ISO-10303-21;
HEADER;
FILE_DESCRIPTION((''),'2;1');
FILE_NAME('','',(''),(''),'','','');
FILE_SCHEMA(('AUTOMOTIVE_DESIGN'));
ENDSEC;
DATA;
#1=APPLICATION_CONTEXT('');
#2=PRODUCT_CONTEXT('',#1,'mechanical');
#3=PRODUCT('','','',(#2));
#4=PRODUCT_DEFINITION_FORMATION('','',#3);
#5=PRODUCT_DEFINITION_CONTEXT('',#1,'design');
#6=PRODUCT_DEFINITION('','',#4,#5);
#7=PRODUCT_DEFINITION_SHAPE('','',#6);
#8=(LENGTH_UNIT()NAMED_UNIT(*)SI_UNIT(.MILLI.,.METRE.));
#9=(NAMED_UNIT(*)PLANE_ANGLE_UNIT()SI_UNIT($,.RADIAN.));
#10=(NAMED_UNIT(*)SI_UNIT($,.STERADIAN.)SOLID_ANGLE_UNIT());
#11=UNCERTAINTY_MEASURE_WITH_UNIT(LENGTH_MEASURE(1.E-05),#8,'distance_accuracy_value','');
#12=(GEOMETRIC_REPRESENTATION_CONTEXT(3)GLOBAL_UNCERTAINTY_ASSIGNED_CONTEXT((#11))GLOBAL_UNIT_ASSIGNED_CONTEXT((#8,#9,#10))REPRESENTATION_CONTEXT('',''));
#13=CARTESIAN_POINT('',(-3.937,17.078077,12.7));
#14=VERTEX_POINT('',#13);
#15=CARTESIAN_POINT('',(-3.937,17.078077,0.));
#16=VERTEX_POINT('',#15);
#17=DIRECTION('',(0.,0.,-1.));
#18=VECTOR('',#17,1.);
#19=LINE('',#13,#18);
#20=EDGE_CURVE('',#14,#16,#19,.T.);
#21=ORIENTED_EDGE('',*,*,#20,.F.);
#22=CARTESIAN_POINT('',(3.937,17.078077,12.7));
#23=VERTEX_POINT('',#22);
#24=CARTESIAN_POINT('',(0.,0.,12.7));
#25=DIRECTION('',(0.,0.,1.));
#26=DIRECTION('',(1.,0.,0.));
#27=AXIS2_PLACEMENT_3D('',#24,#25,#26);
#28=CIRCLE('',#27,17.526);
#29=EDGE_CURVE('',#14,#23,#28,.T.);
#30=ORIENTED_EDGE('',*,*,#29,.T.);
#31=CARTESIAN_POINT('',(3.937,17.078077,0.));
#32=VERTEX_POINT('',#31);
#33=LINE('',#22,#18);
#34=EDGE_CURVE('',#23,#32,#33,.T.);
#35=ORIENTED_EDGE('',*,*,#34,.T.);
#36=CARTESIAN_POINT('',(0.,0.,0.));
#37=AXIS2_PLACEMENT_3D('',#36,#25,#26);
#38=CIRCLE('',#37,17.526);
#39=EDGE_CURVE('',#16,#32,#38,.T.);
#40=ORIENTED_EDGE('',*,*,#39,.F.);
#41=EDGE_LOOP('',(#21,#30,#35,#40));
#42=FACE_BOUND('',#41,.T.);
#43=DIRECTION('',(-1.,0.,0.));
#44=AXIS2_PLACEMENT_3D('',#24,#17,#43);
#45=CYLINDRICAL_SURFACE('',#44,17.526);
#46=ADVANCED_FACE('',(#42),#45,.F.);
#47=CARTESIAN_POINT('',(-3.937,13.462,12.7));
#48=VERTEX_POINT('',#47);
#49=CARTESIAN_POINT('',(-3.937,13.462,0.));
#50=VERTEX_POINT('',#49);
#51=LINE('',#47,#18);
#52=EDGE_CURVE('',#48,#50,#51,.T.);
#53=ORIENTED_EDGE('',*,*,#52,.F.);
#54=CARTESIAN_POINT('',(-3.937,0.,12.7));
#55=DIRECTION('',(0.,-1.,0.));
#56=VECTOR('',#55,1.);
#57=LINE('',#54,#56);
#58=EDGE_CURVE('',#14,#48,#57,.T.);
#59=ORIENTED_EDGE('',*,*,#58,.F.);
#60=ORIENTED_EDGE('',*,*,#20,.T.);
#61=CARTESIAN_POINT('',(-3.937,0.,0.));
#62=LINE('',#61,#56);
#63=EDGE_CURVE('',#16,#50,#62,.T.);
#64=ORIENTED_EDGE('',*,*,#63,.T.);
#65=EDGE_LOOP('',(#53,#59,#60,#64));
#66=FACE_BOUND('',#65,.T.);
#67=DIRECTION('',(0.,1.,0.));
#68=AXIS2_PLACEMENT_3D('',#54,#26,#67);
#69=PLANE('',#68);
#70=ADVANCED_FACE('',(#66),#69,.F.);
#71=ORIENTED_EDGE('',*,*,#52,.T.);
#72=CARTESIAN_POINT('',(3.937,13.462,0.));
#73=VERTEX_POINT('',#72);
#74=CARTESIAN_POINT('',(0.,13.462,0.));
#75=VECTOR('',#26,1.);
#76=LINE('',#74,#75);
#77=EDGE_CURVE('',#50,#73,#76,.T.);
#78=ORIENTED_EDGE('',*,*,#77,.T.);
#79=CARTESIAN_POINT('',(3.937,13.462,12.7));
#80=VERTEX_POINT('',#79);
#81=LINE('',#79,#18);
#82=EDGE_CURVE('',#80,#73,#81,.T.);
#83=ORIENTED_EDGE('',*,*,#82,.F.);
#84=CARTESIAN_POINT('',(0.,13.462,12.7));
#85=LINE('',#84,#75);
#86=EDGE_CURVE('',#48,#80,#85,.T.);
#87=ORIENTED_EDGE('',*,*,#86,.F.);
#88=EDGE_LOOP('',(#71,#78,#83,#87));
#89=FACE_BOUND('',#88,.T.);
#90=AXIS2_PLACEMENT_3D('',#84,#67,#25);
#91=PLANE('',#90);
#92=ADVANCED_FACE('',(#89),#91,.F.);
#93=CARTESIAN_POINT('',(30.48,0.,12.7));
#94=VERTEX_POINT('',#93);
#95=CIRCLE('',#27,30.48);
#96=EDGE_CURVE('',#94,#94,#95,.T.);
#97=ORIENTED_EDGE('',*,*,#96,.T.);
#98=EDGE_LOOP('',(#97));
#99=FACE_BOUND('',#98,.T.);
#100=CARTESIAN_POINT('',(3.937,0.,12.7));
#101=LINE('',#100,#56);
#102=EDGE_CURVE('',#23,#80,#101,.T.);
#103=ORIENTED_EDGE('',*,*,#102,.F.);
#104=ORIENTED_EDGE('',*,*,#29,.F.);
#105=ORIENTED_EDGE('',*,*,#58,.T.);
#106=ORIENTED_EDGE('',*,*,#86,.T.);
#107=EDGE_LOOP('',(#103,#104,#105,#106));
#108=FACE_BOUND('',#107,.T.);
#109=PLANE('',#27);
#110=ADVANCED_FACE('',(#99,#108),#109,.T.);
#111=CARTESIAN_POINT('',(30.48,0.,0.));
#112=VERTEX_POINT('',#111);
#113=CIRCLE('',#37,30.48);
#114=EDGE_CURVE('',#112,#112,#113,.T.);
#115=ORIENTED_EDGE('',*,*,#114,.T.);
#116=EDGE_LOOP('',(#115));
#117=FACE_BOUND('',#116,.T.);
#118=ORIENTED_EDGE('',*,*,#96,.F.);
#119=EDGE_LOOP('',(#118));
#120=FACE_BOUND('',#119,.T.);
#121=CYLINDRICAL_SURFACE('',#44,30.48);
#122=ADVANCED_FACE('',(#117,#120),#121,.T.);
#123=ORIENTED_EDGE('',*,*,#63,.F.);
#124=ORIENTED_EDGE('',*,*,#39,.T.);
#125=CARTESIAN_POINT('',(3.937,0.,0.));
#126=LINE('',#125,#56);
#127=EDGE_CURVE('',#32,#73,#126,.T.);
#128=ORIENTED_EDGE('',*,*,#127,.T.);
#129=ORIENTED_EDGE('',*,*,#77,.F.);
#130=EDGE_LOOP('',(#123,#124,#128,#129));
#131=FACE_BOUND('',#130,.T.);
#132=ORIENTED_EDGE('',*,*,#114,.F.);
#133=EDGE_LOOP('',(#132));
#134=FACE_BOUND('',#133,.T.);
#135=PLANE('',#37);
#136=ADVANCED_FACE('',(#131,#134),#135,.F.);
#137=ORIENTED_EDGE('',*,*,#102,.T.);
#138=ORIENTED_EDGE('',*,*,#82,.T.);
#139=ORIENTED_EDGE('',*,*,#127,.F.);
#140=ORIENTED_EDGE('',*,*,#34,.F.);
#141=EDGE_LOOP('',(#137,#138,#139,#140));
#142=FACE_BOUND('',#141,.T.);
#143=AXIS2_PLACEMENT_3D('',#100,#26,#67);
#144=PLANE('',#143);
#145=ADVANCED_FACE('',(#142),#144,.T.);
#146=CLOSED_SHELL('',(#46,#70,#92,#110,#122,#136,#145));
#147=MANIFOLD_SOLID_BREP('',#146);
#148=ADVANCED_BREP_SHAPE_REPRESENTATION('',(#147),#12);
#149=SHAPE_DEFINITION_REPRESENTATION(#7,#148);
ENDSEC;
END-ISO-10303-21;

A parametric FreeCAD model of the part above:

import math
import FreeCAD as App
import Part
import Sketcher
from FreeCAD import Vector
Q = App.Units.Quantity

doc = App.newDocument("Part")
body = doc.addObject("PartDesign::Body", "Body")

# Sketch on XY plane
sketch1 = body.newObject("Sketcher::SketchObject", "Sketch")
sketch1.AttachmentSupport = (doc.getObject("XY_Plane"), [""])
sketch1.MapMode = "FlatFace"
sketch1.addGeometry(Part.Circle(Vector(0, 0, 0), Vector(0, 0, 1), 30.5), False)
sketch1.addGeometry(Part.ArcOfCircle(Part.Circle(Vector(0, 0, 0), Vector(0, 0, 1), 17.5), math.radians(103), math.radians(437)), False)
sketch1.addGeometry(Part.LineSegment(Vector(-3.9, 17.1, 0), Vector(-3.9, 13.5, 0)), False)
sketch1.addGeometry(Part.LineSegment(Vector(-3.9, 13.5, 0), Vector(3.9, 13.5, 0)), False)
sketch1.addGeometry(Part.LineSegment(Vector(3.9, 13.5, 0), Vector(3.9, 17.1, 0)), False)
sketch1.addConstraint(Sketcher.Constraint("Coincident", 1, 1, 2, 1))
sketch1.addConstraint(Sketcher.Constraint("Coincident", 2, 2, 3, 1))
sketch1.addConstraint(Sketcher.Constraint("Coincident", 3, 2, 4, 1))
sketch1.addConstraint(Sketcher.Constraint("Coincident", 4, 2, 1, 2))
sketch1.addConstraint(Sketcher.Constraint("Vertical", 2))
sketch1.addConstraint(Sketcher.Constraint("Horizontal", 3))
sketch1.addConstraint(Sketcher.Constraint("Vertical", 4))
sketch1.addConstraint(Sketcher.Constraint("Coincident", 0, 3, -1, 1))
sketch1.addConstraint(Sketcher.Constraint("Coincident", 1, 3, -1, 1))
sketch1.addConstraint(Sketcher.Constraint("Horizontal", 1, 1, 4, 2))
sketch1.addConstraint(Sketcher.Constraint("Diameter", 0, Q("2.4 in")))
sketch1.addConstraint(Sketcher.Constraint("Radius", 1, Q("0.69 in")))
sketch1.addConstraint(Sketcher.Constraint("DistanceX", 3, 1, 3, 2, Q("0.31 in")))
sketch1.addConstraint(Sketcher.Constraint("DistanceY", -1, 1, 2, 2, Q("0.53 in")))
pad1 = body.newObject("PartDesign::Pad", "Pad")
pad1.Profile = sketch1
pad1.Length = Q("0.5 in")

doc.recompute()
